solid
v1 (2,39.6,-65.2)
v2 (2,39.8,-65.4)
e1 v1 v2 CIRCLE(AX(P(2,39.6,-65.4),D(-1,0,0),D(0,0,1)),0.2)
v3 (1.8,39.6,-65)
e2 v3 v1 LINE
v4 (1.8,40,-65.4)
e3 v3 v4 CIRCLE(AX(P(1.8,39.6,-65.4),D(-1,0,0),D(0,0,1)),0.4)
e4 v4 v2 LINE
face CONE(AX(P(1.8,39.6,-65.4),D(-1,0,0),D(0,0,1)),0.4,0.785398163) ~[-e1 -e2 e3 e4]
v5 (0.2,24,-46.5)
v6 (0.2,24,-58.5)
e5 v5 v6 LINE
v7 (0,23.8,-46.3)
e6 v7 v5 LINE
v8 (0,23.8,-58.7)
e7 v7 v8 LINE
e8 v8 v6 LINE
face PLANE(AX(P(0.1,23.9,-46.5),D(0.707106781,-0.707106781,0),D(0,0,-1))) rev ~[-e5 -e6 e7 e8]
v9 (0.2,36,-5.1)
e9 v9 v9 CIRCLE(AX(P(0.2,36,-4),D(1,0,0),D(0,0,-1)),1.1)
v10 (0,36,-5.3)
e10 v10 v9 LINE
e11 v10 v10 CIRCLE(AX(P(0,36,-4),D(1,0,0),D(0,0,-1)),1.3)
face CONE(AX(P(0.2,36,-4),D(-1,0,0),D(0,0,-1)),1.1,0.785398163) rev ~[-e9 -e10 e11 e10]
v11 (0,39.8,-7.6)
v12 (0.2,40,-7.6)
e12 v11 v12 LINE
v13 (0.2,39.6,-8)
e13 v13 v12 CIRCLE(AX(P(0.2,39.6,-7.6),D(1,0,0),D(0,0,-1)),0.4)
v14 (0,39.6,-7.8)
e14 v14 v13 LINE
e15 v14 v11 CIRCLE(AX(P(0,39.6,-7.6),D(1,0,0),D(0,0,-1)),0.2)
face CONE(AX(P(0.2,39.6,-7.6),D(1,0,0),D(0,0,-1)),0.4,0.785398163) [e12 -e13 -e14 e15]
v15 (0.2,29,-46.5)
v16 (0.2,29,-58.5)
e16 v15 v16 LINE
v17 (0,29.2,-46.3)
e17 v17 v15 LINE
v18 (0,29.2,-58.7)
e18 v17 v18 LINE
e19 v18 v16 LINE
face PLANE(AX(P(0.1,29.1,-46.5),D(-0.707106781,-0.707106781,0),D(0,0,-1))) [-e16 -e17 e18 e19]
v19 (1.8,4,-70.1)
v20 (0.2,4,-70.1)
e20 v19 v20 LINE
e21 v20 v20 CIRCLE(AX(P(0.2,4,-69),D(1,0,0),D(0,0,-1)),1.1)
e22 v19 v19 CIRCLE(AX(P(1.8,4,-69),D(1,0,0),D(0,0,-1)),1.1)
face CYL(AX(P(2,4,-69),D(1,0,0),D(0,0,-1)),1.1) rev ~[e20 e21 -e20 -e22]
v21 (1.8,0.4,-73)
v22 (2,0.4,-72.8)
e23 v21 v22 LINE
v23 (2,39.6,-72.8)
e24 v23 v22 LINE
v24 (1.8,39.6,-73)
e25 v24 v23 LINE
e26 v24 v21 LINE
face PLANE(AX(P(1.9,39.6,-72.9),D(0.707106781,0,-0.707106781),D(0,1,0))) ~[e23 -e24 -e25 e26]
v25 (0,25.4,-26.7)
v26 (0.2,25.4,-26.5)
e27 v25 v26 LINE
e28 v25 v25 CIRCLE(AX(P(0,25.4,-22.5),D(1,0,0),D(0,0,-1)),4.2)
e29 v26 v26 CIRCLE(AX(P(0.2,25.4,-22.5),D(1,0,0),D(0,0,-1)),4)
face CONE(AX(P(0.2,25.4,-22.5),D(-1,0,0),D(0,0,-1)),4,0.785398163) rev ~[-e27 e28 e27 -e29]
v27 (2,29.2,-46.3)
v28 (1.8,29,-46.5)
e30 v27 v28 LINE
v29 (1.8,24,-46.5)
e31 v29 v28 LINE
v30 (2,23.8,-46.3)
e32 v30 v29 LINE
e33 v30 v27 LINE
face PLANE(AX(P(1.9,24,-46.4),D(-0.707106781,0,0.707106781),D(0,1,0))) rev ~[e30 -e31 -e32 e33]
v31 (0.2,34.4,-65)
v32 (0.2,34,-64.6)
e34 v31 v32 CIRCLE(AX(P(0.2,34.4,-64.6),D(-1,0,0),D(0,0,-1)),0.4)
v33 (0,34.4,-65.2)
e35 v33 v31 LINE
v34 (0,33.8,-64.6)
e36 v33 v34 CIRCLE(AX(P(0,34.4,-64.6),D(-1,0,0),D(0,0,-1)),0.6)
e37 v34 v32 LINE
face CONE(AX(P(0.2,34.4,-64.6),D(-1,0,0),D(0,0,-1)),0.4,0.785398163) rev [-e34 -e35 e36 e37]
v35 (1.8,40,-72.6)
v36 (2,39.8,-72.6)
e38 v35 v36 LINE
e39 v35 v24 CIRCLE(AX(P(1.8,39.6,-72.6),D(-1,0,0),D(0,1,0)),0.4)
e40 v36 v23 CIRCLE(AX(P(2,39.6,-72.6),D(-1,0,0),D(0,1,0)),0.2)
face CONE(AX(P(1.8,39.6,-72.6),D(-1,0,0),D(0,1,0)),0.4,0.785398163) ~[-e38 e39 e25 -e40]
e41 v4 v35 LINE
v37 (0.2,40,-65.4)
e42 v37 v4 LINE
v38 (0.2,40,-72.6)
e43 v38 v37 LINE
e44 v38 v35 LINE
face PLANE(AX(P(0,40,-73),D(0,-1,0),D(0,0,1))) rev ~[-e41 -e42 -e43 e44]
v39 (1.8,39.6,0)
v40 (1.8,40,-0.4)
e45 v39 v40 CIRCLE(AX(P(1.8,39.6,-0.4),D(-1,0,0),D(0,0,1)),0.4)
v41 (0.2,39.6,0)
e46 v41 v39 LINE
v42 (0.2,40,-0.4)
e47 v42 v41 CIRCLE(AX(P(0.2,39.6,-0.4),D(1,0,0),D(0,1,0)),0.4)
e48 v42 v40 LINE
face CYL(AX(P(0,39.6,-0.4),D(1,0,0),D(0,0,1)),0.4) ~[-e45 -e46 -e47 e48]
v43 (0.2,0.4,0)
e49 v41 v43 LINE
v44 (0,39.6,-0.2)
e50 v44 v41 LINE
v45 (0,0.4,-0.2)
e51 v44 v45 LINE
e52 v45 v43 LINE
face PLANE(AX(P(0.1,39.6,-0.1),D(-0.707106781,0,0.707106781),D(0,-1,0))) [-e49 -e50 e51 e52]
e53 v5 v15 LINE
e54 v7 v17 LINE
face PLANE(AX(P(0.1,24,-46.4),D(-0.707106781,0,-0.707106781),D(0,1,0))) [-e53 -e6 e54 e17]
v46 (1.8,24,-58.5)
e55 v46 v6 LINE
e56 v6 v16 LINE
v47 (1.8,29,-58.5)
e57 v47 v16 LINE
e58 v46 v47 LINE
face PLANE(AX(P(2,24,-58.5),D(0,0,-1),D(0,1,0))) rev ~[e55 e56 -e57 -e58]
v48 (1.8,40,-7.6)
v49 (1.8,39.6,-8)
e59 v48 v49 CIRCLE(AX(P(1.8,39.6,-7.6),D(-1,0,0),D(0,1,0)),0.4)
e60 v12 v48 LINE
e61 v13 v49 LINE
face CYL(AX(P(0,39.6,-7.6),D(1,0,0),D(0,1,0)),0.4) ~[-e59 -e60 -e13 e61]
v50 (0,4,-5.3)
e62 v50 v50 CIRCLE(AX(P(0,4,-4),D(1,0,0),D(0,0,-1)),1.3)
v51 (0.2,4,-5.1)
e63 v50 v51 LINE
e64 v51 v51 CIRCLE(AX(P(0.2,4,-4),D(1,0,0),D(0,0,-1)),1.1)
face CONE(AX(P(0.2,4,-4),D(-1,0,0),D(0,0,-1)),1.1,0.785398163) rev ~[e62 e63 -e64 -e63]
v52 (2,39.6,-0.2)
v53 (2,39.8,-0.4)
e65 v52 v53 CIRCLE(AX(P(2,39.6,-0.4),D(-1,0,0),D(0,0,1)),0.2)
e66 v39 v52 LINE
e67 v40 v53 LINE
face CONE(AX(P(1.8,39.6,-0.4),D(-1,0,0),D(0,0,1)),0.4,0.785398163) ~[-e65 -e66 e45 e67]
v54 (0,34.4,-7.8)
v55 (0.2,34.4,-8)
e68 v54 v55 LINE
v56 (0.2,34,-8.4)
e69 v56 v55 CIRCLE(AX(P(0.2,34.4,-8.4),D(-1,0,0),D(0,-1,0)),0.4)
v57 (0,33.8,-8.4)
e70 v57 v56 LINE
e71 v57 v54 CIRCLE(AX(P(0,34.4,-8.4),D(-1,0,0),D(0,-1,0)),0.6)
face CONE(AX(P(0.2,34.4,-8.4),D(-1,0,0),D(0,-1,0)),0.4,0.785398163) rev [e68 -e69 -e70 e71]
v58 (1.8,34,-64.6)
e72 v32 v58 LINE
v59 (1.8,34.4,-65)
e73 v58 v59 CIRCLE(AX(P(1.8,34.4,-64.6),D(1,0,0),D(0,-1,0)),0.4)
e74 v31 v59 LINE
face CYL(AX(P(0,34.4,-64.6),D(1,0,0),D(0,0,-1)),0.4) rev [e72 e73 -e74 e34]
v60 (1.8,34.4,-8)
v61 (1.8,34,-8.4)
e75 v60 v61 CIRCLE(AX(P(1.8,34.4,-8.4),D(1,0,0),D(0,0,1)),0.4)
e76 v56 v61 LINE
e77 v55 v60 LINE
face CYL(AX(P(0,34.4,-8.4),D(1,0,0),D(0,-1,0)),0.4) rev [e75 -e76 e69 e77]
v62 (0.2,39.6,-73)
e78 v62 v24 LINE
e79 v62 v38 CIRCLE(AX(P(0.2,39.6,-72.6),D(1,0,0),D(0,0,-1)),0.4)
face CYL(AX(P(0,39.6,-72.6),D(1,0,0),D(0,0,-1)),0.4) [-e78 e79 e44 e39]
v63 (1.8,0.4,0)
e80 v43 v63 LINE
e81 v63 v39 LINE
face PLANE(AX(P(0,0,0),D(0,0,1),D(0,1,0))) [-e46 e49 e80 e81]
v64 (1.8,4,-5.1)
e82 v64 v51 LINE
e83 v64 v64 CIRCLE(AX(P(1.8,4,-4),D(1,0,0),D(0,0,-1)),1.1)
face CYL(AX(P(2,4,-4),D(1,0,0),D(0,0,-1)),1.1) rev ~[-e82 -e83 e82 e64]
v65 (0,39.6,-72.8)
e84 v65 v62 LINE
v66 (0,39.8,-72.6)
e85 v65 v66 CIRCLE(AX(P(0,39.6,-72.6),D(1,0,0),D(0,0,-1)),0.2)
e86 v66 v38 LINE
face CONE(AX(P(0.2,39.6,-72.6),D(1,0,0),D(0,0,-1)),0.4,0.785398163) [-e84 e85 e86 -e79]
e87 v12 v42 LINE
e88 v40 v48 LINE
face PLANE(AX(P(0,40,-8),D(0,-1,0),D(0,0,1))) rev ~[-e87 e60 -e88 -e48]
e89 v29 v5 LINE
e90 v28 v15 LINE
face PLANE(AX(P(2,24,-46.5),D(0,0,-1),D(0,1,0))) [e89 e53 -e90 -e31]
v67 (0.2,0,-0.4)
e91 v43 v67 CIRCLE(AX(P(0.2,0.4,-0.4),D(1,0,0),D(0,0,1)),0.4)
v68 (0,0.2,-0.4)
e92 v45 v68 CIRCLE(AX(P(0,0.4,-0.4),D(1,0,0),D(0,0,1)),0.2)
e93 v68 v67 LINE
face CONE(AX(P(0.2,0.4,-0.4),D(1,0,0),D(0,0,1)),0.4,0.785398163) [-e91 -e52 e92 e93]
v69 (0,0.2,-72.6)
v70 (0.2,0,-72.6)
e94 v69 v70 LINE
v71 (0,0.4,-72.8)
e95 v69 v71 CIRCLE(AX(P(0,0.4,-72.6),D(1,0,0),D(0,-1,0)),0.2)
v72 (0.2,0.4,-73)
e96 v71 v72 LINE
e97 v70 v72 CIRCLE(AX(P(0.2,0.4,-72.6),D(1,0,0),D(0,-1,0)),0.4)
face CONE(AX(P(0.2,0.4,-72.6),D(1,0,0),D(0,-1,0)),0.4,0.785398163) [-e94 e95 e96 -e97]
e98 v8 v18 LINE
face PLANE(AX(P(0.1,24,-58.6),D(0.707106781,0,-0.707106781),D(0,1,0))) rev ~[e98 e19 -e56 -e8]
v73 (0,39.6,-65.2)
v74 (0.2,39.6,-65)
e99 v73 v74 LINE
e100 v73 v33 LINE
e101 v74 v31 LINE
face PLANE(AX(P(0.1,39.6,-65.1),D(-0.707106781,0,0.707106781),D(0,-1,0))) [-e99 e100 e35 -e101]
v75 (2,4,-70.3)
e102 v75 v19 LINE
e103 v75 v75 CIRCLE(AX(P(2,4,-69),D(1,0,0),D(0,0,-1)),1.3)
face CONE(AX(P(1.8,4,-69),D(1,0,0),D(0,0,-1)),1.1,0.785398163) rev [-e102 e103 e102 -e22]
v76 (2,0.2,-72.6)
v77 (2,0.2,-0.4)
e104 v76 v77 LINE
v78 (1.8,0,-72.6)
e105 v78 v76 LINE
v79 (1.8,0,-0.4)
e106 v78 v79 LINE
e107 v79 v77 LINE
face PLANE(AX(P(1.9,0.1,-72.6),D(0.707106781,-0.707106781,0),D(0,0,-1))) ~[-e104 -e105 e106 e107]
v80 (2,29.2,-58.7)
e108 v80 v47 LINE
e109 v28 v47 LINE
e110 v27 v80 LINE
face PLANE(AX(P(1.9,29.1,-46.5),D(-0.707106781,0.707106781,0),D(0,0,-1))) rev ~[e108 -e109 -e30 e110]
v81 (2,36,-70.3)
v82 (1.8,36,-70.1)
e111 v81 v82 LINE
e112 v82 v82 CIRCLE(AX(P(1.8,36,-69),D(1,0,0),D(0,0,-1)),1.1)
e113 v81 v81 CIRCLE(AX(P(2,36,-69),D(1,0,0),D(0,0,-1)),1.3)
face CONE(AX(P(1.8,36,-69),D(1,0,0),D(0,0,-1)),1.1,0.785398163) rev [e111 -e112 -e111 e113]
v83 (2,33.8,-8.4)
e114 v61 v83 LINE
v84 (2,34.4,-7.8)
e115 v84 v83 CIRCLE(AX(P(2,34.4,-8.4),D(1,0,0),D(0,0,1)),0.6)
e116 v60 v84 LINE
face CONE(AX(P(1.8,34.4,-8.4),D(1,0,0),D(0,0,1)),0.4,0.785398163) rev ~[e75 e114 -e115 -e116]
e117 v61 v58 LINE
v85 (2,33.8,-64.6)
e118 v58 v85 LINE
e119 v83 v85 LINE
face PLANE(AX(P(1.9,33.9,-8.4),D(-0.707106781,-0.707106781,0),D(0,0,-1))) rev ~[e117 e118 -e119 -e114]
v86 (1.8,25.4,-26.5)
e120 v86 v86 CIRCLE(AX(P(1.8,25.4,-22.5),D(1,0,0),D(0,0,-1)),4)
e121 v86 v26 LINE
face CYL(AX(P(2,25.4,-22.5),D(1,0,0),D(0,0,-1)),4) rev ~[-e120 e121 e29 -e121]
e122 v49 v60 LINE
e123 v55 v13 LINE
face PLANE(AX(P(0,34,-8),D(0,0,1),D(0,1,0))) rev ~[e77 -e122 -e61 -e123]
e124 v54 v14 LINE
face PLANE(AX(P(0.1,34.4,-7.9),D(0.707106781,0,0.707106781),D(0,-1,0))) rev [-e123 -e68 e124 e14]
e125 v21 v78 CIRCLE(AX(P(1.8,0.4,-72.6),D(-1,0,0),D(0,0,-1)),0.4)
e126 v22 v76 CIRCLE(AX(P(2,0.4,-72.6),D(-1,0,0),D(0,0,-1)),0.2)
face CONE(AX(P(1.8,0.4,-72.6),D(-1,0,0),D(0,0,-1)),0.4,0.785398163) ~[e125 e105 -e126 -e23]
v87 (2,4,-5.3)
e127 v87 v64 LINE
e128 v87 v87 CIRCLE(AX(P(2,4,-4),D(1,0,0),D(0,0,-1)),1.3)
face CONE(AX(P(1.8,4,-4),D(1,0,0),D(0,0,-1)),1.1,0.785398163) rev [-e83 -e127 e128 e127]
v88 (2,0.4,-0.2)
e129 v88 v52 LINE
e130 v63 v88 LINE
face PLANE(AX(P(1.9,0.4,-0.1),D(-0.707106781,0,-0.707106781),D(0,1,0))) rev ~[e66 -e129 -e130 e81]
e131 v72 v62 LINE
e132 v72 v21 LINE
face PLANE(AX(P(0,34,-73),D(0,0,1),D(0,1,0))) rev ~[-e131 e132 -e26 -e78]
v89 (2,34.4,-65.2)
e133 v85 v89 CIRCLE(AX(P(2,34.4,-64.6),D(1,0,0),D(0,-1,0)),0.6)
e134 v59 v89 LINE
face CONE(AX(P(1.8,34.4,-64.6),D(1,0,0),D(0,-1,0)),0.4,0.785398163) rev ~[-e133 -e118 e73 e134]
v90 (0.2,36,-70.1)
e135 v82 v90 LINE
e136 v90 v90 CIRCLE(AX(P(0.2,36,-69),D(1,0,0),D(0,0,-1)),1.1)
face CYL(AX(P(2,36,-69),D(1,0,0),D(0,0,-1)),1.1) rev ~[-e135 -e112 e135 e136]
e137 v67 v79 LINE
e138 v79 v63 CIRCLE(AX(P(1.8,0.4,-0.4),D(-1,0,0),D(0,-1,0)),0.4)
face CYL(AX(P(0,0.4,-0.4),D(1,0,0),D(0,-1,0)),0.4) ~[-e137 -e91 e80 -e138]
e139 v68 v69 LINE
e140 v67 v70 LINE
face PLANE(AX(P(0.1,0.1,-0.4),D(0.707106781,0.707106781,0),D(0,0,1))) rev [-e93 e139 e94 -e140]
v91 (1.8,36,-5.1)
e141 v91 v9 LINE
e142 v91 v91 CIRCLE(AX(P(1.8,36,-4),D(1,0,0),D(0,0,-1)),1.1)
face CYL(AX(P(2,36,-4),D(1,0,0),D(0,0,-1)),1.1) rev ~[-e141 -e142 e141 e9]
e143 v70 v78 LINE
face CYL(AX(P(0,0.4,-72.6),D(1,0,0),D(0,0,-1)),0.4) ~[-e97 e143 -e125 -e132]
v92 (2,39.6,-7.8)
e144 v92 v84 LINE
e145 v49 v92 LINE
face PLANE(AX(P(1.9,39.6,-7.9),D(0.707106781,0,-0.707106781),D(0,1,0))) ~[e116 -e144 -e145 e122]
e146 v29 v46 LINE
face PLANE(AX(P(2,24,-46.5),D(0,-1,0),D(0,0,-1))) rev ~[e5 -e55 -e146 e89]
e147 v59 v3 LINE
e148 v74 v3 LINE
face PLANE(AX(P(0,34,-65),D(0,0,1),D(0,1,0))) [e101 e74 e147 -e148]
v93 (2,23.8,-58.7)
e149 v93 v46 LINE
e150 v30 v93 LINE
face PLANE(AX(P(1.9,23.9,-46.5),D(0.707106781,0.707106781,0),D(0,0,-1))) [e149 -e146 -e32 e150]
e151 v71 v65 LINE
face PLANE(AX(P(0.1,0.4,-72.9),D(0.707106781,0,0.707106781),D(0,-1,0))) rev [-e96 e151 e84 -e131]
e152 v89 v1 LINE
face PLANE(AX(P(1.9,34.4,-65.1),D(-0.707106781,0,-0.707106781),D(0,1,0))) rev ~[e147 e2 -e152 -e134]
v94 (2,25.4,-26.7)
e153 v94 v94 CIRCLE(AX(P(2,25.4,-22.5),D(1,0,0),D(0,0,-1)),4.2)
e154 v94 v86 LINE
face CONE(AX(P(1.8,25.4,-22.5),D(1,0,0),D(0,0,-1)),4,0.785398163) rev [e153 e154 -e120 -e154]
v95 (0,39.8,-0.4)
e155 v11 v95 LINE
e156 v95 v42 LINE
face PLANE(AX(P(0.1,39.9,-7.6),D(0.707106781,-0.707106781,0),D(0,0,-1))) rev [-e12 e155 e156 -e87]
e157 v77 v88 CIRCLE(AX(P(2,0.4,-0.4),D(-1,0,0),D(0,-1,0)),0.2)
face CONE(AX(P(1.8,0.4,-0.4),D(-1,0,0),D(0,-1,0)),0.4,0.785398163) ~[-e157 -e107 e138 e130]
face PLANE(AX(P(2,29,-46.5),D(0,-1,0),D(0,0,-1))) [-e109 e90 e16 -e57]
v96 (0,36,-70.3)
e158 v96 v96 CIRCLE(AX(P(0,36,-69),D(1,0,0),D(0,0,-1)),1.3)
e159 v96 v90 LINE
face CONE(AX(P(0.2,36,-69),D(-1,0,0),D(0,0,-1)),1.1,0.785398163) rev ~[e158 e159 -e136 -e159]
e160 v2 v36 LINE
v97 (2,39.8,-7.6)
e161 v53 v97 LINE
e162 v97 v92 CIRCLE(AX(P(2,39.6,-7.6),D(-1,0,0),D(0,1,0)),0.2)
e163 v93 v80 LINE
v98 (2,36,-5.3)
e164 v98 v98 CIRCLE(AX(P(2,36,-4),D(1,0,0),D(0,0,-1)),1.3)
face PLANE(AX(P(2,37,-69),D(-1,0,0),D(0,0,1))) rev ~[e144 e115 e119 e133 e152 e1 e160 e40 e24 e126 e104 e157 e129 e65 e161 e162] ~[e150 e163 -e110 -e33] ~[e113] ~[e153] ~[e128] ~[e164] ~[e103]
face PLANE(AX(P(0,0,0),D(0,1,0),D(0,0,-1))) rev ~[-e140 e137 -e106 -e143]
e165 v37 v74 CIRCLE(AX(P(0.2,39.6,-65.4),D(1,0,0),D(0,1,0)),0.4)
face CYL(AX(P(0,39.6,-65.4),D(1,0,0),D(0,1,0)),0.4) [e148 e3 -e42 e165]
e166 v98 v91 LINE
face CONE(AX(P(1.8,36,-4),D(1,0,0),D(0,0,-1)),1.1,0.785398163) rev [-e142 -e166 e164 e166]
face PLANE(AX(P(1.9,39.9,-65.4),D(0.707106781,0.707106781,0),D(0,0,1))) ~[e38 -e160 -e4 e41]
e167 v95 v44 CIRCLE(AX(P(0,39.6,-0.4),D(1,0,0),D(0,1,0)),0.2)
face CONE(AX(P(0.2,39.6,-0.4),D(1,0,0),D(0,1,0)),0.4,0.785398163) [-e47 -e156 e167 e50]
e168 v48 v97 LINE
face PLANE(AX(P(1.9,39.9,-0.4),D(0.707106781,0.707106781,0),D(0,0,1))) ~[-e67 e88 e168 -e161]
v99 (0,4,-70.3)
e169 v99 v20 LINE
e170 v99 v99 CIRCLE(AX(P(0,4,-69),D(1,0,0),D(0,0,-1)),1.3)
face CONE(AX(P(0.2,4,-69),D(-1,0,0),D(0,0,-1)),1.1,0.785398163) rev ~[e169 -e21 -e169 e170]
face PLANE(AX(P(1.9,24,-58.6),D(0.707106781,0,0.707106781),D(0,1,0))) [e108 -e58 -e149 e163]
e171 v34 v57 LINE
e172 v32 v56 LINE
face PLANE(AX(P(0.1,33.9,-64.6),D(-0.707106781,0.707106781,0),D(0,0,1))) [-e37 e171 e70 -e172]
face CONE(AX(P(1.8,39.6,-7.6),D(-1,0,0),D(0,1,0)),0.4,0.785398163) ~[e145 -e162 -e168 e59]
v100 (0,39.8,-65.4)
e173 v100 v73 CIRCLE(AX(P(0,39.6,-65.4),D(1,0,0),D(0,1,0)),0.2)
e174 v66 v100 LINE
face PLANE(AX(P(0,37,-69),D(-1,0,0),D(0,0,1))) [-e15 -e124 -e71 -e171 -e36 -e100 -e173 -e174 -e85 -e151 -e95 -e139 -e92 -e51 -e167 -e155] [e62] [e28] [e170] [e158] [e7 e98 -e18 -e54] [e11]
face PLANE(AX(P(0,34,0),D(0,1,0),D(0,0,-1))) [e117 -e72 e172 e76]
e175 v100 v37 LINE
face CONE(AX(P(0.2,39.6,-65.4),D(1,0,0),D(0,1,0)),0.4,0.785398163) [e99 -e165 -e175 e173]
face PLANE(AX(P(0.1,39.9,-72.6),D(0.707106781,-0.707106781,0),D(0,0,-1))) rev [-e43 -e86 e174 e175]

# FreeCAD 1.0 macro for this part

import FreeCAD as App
import Part
import Sketcher
from FreeCAD import Vector
Q = App.Units.Quantity


def edges_at(feature, points):
    """Names of the edges that pass closest to the given points."""
    edges = feature.Shape.Edges
    near = lambda p: min(range(len(edges)), key=lambda i: edges[i].distToShape(Part.Vertex(*p))[0])
    return sorted({f"Edge{near(p) + 1}" for p in points})


def add_polygon(sketch, points):
    """Adds a closed chain of lines whose ends are joined by coincident constraints."""
    first, n = sketch.GeometryCount, len(points)
    for a, b in zip(points, points[1:] + points[:1]):
        sketch.addGeometry(Part.LineSegment(App.Vector(*a, 0), App.Vector(*b, 0)), False)
    for i in range(n):
        sketch.addConstraint(Sketcher.Constraint("Coincident", first + i, 2, first + (i + 1) % n, 1))

doc = App.newDocument("Part")
body = doc.addObject("PartDesign::Body", "Body")

# Sketch on YZ plane
sketch1 = doc.addObject("Sketcher::SketchObject", "Sketch")
body.addObject(sketch1)
sketch1.AttachmentSupport = (doc.YZ_Plane, [""])
sketch1.MapMode = "FlatFace"
add_polygon(sketch1, [(34, 0), (0, 0), (0, -73), (34, -73)])  # lines 0-3
sketch1.addConstraint([
    Sketcher.Constraint("Horizontal", 0),
    Sketcher.Constraint("Vertical", 1),
    Sketcher.Constraint("Horizontal", 2),
    Sketcher.Constraint("Vertical", 3),
    Sketcher.Constraint("Coincident", 0, 2, -1, 1),
    Sketcher.Constraint("DistanceX", 0, 2, 0, 1, Q("34 mm")),
    Sketcher.Constraint("DistanceY", 1, 2, 1, 1, Q("73 mm")),
])
pad1 = doc.addObject("PartDesign::Pad", "Pad")
body.addObject(pad1)
pad1.Profile = sketch1
pad1.Length = 2

# Sketch on YZ plane
sketch2 = doc.addObject("Sketcher::SketchObject", "Sketch001")
body.addObject(sketch2)
sketch2.AttachmentSupport = (doc.YZ_Plane, [""])
sketch2.MapMode = "FlatFace"
sketch2.AttachmentOffset = App.Placement(Vector(0, 0, 2), App.Rotation())
sketch2.addGeometry(Part.Circle(Vector(25.4, -22.5, 0), Vector(0, 0, 1), 4), False)  # 0
add_polygon(sketch2, [(29, -46.5), (24, -46.5), (24, -58.5), (29, -58.5)])  # lines 1-4
sketch2.addConstraint([
    Sketcher.Constraint("Horizontal", 1),
    Sketcher.Constraint("Vertical", 2),
    Sketcher.Constraint("Horizontal", 3),
    Sketcher.Constraint("Vertical", 4),
    Sketcher.Constraint("Diameter", 0, Q("8 mm")),
    Sketcher.Constraint("DistanceX", 1, 2, 1, 1, Q("5 mm")),
    Sketcher.Constraint("DistanceY", 2, 2, 2, 1, Q("12 mm")),
    Sketcher.Constraint("DistanceX", -1, 1, 1, 2, Q("24 mm")),
    Sketcher.Constraint("DistanceY", 1, 2, 0, 3, Q("24 mm")),
    Sketcher.Constraint("DistanceX", -1, 1, 0, 3, Q("25.4 mm")),
    Sketcher.Constraint("DistanceY", 0, 3, -1, 1, Q("22.5 mm")),
])
pocket1 = doc.addObject("PartDesign::Pocket", "Pocket")
body.addObject(pocket1)
pocket1.Profile = sketch2
pocket1.Length = 2

# Sketch on YZ plane
sketch3 = doc.addObject("Sketcher::SketchObject", "Sketch002")
body.addObject(sketch3)
sketch3.AttachmentSupport = (doc.YZ_Plane, [""])
sketch3.MapMode = "FlatFace"
add_polygon(sketch3, [(40, -73), (34, -73), (34, -65), (40, -65)])  # lines 0-3
add_polygon(sketch3, [(40, -8), (34, -8), (34, 0), (40, 0)])  # lines 4-7
sketch3.addConstraint([
    Sketcher.Constraint("Horizontal", 0),
    Sketcher.Constraint("Vertical", 1),
    Sketcher.Constraint("Horizontal", 2),
    Sketcher.Constraint("Vertical", 3),
    Sketcher.Constraint("Horizontal", 4),
    Sketcher.Constraint("Vertical", 5),
    Sketcher.Constraint("Horizontal", 6),
    Sketcher.Constraint("Vertical", 7),
    Sketcher.Constraint("PointOnObject", 5, 2, -1),
    Sketcher.Constraint("Vertical", 1, 2, 4, 2),
    Sketcher.Constraint("Vertical", 3, 2, 6, 2),
    Sketcher.Constraint("Equal", 3, 5),
    Sketcher.Constraint("DistanceX", 0, 2, 0, 1, Q("6 mm")),
    Sketcher.Constraint("DistanceY", 1, 1, 1, 2, Q("8 mm")),
    Sketcher.Constraint("DistanceX", -1, 1, 0, 2, Q("34 mm")),
    Sketcher.Constraint("DistanceY", 0, 2, -1, 1, Q("73 mm")),
])
pad2 = doc.addObject("PartDesign::Pad", "Pad001")
body.addObject(pad2)
pad2.Profile = sketch3
pad2.Length = 2

# Sketch on YZ plane
sketch4 = doc.addObject("Sketcher::SketchObject", "Sketch003")
body.addObject(sketch4)
sketch4.AttachmentSupport = (doc.YZ_Plane, [""])
sketch4.MapMode = "FlatFace"
sketch4.AttachmentOffset = App.Placement(Vector(0, 0, 2), App.Rotation())
sketch4.addGeometry([
    Part.Circle(Vector(36, -4, 0), Vector(0, 0, 1), 1.1),
    Part.Circle(Vector(36, -69, 0), Vector(0, 0, 1), 1.1),
    Part.Circle(Vector(4, -69, 0), Vector(0, 0, 1), 1.1),
    Part.Circle(Vector(4, -4, 0), Vector(0, 0, 1), 1.1),
], False)
sketch4.addConstraint([
    Sketcher.Constraint("Equal", 0, 1),
    Sketcher.Constraint("Equal", 1, 2),
    Sketcher.Constraint("Equal", 2, 3),
    Sketcher.Constraint("Horizontal", 1, 3, 2, 3),
    Sketcher.Constraint("Horizontal", 0, 3, 3, 3),
    Sketcher.Constraint("Vertical", 0, 3, 1, 3),
    Sketcher.Constraint("Vertical", 2, 3, 3, 3),
    Sketcher.Constraint("Diameter", 0, Q("2.2 mm")),
    Sketcher.Constraint("DistanceX", -1, 1, 0, 3, Q("36 mm")),
    Sketcher.Constraint("DistanceY", 0, 3, -1, 1, Q("4 mm")),
    Sketcher.Constraint("DistanceY", 1, 3, -1, 1, Q("69 mm")),
    Sketcher.Constraint("DistanceX", -1, 1, 2, 3, Q("4 mm")),
])
pocket2 = doc.addObject("PartDesign::Pocket", "Pocket001")
body.addObject(pocket2)
pocket2.Profile = sketch4
pocket2.Length = 2
doc.recompute()

fillet = doc.addObject("PartDesign::Fillet", "Fillet")
body.addObject(fillet)
fillet.Base = (pocket2, edges_at(pocket2, [
    (1, 40, -73),
    (1, 40, -65),
    (1, 34, -65),
    (1, 40, 0),
    (1, 34, -8),
    (1, 40, -8),
    (1, 0, -73),
    (1, 0, 0),
]))
fillet.Radius = 0.4
doc.recompute()

chamfer = doc.addObject("PartDesign::Chamfer", "Chamfer")
body.addObject(chamfer)
chamfer.Base = (fillet, edges_at(fillet, [
    (2, 0.117, -72.883),
    (2, 39.883, -72.883),
    (2, 39.883, -65.117),
    (2, 39.883, -7.883),
    (2, 39.883, -0.117),
    (0, 34.117, -8.117),
    (2, 34.117, -8.117),
    (0, 34.117, -64.883),
    (2, 34.117, -64.883),
    (0, 26.5, -46.5),
    (0, 29, -52.5),
    (0, 26.5, -58.5),
    (0, 24, -52.5),
    (2, 26.5, -46.5),
    (2, 24, -52.5),
    (2, 26.5, -58.5),
    (2, 29, -52.5),
    (0, 25.4, -18.5),
    (2, 25.4, -18.5),
    (0, 4, -2.9),
    (2, 4, -2.9),
    (0, 4, -67.9),
    (2, 4, -67.9),
    (0, 36, -67.9),
    (2, 36, -67.9),
    (0, 36, -2.9),
    (2, 36, -2.9),
    (0, 20, 0),
    (2, 20, 0),
    (0, 40, -4),
    (0, 37, -8),
    (0, 34, -36.5),
    (0, 37, -65),
    (0, 40, -69),
    (0, 20, -73),
    (0, 0, -36.5),
    (0, 0.117, -0.117),
    (0, 0.117, -72.883),
    (0, 39.883, -72.883),
    (0, 39.883, -65.117),
    (0, 39.883, -7.883),
    (0, 39.883, -0.117),
    (2, 40, -4),
    (2, 0, -36.5),
    (2, 20, -73),
    (2, 40, -69),
    (2, 37, -65),
    (2, 34, -36.5),
    (2, 37, -8),
    (2, 0.117, -0.117),
]))
chamfer.Size = 0.2

doc.recompute()
